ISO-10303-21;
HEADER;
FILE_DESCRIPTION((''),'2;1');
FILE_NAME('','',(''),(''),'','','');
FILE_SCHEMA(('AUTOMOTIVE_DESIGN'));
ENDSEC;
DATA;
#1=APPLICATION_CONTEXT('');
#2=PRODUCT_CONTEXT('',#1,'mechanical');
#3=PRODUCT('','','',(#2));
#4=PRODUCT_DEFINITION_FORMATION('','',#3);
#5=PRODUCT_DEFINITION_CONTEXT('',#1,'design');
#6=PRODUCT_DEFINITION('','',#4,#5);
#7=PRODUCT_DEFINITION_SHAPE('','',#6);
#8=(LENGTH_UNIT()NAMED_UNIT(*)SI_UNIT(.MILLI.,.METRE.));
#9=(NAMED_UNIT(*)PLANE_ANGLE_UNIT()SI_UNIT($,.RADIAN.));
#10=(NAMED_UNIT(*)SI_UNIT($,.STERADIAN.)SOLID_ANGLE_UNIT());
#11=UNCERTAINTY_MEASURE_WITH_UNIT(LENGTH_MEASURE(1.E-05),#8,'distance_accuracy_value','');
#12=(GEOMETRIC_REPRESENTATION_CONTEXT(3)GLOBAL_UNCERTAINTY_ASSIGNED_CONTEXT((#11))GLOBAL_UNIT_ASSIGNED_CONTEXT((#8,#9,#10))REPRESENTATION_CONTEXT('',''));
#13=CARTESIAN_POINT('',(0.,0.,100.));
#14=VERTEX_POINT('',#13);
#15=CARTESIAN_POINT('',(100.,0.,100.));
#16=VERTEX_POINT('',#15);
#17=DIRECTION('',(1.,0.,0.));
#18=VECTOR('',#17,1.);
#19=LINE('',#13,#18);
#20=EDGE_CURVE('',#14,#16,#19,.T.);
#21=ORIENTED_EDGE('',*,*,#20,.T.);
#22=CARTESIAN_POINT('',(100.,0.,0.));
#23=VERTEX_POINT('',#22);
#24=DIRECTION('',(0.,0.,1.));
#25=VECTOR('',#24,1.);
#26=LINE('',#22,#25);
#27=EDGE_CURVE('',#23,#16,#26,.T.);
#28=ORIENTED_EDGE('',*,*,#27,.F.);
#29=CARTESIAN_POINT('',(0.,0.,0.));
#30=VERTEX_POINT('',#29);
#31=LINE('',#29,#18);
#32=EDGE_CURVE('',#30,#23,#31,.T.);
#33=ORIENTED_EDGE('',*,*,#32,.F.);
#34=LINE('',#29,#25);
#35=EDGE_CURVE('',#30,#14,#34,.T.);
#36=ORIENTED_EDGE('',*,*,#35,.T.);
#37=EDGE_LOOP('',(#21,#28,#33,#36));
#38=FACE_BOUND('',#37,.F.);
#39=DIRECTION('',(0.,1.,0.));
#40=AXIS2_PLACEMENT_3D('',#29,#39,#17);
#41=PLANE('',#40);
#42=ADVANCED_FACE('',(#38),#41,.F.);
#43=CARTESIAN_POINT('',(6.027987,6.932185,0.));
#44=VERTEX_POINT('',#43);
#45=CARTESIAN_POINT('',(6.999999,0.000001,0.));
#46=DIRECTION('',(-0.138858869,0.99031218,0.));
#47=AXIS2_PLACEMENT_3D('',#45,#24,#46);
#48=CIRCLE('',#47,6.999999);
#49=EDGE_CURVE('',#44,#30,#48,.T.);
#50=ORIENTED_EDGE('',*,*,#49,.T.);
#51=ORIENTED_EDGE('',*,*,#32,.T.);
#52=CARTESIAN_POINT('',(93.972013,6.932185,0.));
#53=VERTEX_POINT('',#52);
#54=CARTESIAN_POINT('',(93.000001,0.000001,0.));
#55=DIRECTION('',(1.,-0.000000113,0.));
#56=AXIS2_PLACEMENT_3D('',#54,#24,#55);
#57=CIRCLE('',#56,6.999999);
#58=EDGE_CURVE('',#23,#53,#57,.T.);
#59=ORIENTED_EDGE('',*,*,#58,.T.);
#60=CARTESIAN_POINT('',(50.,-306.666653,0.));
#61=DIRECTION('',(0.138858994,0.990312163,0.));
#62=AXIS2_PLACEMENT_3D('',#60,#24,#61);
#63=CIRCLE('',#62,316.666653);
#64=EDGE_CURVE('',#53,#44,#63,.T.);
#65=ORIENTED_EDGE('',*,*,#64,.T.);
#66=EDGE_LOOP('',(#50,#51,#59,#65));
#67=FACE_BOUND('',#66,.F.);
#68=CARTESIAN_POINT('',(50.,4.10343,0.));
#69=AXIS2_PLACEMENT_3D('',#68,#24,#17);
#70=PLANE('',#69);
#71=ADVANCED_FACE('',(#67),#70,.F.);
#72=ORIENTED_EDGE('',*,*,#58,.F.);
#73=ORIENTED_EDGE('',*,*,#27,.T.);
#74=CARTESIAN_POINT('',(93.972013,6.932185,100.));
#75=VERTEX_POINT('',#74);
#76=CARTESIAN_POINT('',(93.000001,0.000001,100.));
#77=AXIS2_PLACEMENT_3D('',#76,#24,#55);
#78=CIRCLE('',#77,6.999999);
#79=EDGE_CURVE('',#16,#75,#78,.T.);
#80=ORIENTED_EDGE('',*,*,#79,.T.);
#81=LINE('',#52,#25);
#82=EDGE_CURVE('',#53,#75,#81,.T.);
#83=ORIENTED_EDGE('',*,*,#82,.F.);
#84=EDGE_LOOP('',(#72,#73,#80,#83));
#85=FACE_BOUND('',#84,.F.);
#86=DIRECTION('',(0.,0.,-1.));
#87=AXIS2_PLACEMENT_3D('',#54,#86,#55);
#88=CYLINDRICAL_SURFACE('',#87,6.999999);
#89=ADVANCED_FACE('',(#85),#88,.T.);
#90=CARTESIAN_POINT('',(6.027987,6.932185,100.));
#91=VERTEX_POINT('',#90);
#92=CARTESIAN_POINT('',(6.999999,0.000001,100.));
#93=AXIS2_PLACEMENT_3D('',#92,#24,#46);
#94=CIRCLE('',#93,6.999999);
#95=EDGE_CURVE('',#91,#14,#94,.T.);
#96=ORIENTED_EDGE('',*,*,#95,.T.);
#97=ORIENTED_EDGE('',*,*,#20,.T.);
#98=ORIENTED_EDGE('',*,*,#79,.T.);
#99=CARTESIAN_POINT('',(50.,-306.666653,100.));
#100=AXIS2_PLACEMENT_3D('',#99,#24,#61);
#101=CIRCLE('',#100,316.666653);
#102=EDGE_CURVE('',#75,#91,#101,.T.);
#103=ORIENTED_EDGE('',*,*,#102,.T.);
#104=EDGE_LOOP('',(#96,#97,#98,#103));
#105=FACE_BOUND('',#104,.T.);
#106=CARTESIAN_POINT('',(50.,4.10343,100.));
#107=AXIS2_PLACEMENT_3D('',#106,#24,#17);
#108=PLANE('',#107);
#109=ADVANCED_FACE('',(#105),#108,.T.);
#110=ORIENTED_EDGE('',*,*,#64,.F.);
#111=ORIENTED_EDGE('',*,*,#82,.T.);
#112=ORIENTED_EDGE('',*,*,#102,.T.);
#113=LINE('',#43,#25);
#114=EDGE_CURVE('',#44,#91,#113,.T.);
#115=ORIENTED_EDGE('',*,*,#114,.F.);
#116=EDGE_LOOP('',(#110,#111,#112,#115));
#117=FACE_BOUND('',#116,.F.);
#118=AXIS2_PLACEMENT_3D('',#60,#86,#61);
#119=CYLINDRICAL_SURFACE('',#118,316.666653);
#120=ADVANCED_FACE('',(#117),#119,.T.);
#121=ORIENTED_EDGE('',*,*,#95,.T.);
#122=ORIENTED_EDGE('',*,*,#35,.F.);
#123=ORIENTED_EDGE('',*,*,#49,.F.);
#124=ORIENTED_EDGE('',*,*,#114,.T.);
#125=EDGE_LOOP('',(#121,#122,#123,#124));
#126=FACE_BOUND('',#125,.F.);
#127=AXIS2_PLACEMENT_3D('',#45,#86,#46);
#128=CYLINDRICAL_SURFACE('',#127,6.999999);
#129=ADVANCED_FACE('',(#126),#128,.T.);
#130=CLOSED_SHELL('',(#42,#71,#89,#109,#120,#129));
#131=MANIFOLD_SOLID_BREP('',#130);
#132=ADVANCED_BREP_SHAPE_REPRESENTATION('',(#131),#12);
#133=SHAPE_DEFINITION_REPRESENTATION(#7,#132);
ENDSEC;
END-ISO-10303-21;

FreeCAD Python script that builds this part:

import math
import FreeCAD as App
import Part
import Sketcher

V = App.Vector
Q = App.Units.Quantity

doc = App.newDocument("Part")
body = doc.addObject("PartDesign::Body", "Body")

# Sketch on XY plane
sketch1 = doc.addObject("Sketcher::SketchObject", "Sketch")
body.addObject(sketch1)
sketch1.AttachmentSupport = (doc.XY_Plane, [""])
sketch1.MapMode = "FlatFace"
sketch1.addGeometry([
    Part.ArcOfCircle(Part.Circle(V(7, 0, 0), V(0, 0, 1), 7), math.radians(98), math.radians(180)),
    Part.LineSegment(V(0, 0, 0), V(100, 0, 0)),
    Part.ArcOfCircle(Part.Circle(V(93, 0, 0), V(0, 0, 1), 7), math.radians(0), math.radians(82)),
    Part.ArcOfCircle(Part.Circle(V(50, -307, 0), V(0, 0, 1), 317), math.radians(82.02), math.radians(97.98)),
], False)
sketch1.addConstraint([
    Sketcher.Constraint("Coincident", 0, 2, 1, 1),
    Sketcher.Constraint("Coincident", 1, 2, 2, 1),
    Sketcher.Constraint("Tangent", 2, 2, 3, 1),
    Sketcher.Constraint("Tangent", 3, 2, 0, 1),
    Sketcher.Constraint("Horizontal", 1),
    Sketcher.Constraint("Coincident", 0, 2, -1, 1),
    Sketcher.Constraint("Equal", 0, 2),
    Sketcher.Constraint("PointOnObject", 0, 3, -1),
    Sketcher.Constraint("PointOnObject", 2, 3, -1),
    Sketcher.Constraint("Radius", 0, Q("6.999999 mm")),
    Sketcher.Constraint("DistanceX", 1, 1, 1, 2, Q("100 mm")),
    Sketcher.Constraint("Radius", 3, Q("316.666653 mm")),
])
pad1 = doc.addObject("PartDesign::Pad", "Pad")
body.addObject(pad1)
pad1.Profile = sketch1
pad1.Length = 100

doc.recompute()
